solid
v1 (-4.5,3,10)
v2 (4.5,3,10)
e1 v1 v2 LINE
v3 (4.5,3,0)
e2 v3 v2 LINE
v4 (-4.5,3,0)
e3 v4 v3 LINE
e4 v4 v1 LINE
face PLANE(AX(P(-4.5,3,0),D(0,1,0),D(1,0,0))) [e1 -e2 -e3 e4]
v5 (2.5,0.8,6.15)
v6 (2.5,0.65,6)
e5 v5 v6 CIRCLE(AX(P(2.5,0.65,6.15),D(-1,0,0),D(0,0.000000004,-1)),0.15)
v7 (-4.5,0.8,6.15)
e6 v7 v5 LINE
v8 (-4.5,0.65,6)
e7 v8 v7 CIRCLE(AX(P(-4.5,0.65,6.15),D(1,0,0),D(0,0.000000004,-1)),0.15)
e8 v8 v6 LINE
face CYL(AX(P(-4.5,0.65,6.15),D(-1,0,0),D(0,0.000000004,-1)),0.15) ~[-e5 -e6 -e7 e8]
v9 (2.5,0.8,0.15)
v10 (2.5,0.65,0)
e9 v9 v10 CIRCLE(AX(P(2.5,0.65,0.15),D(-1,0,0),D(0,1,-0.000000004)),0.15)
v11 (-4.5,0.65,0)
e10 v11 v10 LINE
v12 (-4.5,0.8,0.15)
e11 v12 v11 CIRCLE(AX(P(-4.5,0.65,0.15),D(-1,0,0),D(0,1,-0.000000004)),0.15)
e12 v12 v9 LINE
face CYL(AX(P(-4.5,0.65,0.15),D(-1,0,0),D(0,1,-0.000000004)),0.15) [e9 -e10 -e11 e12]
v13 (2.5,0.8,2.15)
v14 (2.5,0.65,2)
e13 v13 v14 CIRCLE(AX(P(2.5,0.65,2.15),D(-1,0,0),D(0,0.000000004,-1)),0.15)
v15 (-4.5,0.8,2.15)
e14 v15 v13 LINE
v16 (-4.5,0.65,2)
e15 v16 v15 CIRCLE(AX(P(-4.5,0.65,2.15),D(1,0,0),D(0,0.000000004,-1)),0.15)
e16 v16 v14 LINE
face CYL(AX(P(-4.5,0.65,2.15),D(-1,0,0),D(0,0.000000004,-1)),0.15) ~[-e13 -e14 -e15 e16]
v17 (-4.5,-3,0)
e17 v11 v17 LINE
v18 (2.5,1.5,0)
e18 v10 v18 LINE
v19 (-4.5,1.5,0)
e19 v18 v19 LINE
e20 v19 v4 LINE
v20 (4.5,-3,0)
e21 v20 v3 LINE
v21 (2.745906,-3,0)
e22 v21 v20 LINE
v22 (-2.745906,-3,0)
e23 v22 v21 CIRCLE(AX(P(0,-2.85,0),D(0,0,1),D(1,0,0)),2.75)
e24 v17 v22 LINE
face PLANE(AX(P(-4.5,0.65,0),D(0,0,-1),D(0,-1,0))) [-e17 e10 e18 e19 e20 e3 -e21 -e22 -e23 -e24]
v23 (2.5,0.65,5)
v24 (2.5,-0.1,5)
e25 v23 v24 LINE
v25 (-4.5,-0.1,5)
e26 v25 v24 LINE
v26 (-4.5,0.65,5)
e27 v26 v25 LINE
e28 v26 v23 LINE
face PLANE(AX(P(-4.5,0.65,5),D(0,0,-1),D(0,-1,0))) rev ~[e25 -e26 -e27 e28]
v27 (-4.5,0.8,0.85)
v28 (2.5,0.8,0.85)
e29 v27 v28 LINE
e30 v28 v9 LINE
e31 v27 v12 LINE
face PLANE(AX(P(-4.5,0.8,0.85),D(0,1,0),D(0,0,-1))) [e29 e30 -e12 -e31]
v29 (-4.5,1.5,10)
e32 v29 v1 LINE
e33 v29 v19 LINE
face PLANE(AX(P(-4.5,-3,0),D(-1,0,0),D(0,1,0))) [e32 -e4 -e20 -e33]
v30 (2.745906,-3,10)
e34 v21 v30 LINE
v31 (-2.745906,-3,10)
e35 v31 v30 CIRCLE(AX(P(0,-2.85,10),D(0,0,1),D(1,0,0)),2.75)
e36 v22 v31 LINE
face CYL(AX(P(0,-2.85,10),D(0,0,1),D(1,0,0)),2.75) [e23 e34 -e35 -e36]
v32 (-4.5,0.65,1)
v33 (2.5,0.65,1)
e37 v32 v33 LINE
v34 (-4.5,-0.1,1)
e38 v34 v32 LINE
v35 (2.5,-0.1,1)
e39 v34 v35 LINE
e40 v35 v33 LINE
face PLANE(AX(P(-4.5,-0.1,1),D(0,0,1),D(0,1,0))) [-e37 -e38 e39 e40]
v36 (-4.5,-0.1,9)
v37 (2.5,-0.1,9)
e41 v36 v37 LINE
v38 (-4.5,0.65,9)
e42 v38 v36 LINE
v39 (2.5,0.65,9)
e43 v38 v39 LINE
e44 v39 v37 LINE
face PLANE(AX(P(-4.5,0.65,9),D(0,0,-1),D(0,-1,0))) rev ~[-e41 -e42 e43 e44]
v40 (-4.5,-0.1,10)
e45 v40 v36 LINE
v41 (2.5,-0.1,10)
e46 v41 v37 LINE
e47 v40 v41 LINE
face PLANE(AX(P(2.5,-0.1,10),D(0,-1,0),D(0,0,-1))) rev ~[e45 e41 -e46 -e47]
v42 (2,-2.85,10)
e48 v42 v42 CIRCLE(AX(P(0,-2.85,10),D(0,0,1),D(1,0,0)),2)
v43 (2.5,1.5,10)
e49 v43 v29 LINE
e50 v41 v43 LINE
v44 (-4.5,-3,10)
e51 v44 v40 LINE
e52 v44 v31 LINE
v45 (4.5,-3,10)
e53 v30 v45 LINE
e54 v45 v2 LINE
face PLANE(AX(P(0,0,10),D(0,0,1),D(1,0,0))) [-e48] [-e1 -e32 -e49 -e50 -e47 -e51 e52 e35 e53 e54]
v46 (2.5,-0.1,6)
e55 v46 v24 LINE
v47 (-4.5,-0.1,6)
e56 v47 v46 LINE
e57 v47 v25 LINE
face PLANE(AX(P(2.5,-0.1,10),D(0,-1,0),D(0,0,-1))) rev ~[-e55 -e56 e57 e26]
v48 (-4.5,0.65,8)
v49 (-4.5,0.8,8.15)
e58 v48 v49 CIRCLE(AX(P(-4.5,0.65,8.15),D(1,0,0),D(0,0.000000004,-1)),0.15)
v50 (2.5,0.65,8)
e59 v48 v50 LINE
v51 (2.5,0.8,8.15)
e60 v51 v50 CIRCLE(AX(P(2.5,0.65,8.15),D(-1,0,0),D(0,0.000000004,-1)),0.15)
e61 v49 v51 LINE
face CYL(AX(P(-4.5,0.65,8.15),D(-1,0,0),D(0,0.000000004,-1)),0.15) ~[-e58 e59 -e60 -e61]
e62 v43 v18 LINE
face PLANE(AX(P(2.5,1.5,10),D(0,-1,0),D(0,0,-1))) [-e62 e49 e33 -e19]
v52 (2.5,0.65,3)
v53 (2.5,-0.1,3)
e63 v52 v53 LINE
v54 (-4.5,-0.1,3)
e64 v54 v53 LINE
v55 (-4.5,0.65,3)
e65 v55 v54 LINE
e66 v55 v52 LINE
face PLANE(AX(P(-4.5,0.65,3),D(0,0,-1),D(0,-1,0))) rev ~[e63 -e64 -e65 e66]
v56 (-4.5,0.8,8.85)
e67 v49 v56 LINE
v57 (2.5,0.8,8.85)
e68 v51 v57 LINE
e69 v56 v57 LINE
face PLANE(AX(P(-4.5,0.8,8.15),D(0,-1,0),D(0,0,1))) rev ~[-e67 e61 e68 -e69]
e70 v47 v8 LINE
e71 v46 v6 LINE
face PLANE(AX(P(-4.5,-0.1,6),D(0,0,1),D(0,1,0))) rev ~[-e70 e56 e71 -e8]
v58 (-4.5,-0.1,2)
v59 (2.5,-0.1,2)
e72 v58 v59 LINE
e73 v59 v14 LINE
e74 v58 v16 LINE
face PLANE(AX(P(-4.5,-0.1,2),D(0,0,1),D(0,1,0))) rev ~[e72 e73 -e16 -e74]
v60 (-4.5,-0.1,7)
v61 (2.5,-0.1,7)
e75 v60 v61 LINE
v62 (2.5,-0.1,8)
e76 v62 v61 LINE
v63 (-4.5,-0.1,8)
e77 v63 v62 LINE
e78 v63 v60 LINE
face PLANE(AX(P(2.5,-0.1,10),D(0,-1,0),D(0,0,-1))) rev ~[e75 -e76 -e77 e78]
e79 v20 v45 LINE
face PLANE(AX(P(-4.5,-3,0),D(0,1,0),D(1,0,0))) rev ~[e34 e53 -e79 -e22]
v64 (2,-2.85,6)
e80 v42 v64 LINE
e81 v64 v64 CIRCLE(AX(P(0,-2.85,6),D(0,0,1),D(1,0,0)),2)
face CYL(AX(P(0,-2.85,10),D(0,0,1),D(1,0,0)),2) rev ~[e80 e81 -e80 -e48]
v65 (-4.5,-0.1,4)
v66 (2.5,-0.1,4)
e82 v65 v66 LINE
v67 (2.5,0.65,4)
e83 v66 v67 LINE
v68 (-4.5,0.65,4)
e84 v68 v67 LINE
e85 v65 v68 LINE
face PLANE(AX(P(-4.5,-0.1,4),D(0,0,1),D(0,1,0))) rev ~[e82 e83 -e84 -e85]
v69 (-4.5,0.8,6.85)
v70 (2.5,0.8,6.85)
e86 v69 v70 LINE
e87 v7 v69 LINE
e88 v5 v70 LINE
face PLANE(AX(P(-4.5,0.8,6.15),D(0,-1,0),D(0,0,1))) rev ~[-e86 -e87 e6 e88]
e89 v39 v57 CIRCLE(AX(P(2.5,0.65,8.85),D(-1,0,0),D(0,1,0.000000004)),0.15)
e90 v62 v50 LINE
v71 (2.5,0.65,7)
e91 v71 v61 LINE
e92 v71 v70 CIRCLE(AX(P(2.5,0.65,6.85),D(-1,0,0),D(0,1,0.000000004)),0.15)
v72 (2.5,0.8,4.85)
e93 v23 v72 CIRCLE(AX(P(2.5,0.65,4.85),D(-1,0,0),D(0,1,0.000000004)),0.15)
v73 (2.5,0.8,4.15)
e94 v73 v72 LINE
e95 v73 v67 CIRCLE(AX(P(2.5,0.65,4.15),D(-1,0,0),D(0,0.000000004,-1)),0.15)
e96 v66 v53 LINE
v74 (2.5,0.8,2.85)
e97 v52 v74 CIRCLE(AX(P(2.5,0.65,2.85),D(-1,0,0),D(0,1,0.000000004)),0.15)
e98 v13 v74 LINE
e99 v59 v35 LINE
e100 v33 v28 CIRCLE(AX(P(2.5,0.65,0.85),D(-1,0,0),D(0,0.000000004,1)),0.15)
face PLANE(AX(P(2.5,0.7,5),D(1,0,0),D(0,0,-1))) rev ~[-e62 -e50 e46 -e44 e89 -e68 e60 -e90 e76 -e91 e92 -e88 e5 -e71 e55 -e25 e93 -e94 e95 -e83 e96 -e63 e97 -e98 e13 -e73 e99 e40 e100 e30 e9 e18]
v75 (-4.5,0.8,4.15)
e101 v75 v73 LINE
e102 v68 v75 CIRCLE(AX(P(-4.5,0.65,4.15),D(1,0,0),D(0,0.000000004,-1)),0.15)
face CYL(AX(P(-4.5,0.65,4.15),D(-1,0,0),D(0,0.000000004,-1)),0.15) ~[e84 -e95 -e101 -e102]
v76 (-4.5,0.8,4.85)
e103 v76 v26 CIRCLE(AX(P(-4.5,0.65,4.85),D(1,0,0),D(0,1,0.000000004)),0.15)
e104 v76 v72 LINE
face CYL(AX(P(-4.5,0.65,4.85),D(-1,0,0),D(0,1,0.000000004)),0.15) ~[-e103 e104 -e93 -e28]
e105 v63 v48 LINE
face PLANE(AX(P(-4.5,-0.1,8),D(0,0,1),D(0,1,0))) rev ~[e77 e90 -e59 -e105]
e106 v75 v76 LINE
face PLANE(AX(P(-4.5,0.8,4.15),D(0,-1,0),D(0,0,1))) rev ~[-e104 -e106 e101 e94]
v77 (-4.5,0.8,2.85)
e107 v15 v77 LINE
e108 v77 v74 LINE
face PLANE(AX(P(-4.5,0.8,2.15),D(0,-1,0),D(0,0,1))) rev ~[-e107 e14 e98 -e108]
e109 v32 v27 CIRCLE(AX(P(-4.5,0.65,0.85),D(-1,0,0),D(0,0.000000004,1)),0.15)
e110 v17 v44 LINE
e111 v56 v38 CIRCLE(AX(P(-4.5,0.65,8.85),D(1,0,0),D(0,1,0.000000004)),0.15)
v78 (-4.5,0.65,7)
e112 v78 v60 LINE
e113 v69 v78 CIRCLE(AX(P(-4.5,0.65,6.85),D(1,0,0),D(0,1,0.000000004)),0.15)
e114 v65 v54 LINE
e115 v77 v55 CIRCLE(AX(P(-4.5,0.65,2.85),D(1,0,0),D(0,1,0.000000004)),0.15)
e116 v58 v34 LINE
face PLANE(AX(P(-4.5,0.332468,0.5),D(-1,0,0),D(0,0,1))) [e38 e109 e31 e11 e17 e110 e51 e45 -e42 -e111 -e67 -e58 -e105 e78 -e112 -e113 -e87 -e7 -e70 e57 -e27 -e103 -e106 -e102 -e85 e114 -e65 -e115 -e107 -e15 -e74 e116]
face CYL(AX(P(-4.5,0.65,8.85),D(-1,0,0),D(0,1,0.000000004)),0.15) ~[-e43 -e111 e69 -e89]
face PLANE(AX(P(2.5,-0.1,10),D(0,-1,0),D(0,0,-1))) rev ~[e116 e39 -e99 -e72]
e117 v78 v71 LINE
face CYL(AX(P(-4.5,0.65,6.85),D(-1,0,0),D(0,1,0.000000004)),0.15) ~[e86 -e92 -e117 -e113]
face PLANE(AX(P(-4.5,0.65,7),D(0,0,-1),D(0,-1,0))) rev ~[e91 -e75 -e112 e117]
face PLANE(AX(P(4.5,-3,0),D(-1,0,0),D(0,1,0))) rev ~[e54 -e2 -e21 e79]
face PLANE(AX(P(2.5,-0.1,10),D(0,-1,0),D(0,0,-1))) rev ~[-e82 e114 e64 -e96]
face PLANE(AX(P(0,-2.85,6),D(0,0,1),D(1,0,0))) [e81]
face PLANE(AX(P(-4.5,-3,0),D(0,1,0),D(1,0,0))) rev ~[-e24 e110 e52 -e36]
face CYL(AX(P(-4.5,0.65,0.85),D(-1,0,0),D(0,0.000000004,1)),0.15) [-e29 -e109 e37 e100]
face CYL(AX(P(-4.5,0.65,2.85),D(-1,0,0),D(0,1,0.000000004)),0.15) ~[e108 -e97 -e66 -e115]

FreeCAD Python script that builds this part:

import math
import FreeCAD as App
import Part
import Sketcher


def add_polygon(sketch, points):
    """Adds a closed chain of lines whose ends are joined by coincident constraints."""
    first, n = sketch.GeometryCount, len(points)
    for a, b in zip(points, points[1:] + points[:1]):
        sketch.addGeometry(Part.LineSegment(App.Vector(*a, 0), App.Vector(*b, 0)), False)
    for i in range(n):
        sketch.addConstraint(Sketcher.Constraint("Coincident", first + i, 2, first + (i + 1) % n, 1))

doc = App.newDocument("Part")
body = doc.addObject("PartDesign::Body", "Body")

# Sketch on XY plane
sketch1 = body.newObject("Sketcher::SketchObject", "Sketch")
sketch1.AttachmentSupport = (doc.getObject("XY_Plane"), [""])
sketch1.MapMode = "FlatFace"
add_polygon(sketch1, [(-4, 3), (-4, -3), (4, -3), (4, 3)])  # lines 0-3
sketch1.addConstraint(Sketcher.Constraint("Vertical", 0))
sketch1.addConstraint(Sketcher.Constraint("Horizontal", 1))
sketch1.addConstraint(Sketcher.Constraint("Vertical", 2))
sketch1.addConstraint(Sketcher.Constraint("Horizontal", 3))
sketch1.addConstraint(Sketcher.Constraint("Symmetric", 0, 2, 2, 2, -1, 1))
sketch1.addConstraint(Sketcher.Constraint("DistanceX", 1, 1, 1, 2, 9.0))
sketch1.addConstraint(Sketcher.Constraint("DistanceY", 0, 2, 0, 1, 6.0))
pad1 = body.newObject("PartDesign::Pad", "Pad")
pad1.Profile = sketch1
pad1.Length = 10

# Sketch on YZ plane
sketch2 = body.newObject("Sketcher::SketchObject", "Sketch001")
sketch2.AttachmentSupport = (doc.getObject("YZ_Plane"), [""])
sketch2.MapMode = "FlatFace"
sketch2.AttachmentOffset = App.Placement(App.Vector(0, 0, 2.5), App.Rotation())
add_polygon(sketch2, [(1.5, 10), (-0.1, 10), (-0.1, 0), (1.5, 0)])  # lines 0-3
sketch2.addConstraint(Sketcher.Constraint("Horizontal", 0))
sketch2.addConstraint(Sketcher.Constraint("Vertical", 1))
sketch2.addConstraint(Sketcher.Constraint("Horizontal", 2))
sketch2.addConstraint(Sketcher.Constraint("Vertical", 3))
sketch2.addConstraint(Sketcher.Constraint("PointOnObject", 1, 2, -1))
sketch2.addConstraint(Sketcher.Constraint("DistanceY", 1, 2, 1, 1, 10.0))
sketch2.addConstraint(Sketcher.Constraint("DistanceX", 0, 2, 0, 1, 1.6))
sketch2.addConstraint(Sketcher.Constraint("DistanceX", 0, 2, -1, 1, 0.1))
pocket1 = body.newObject("PartDesign::Pocket", "Pocket")
pocket1.Profile = sketch2
pocket1.Length = 7

# Sketch on XY plane
sketch3 = body.newObject("Sketcher::SketchObject", "Sketch002")
sketch3.AttachmentSupport = (doc.getObject("XY_Plane"), [""])
sketch3.MapMode = "FlatFace"
sketch3.AttachmentOffset = App.Placement(App.Vector(0, 0, 10), App.Rotation())
sketch3.addGeometry(Part.Circle(App.Vector(0, -2.9, 0), App.Vector(0, 0, 1), 2.8), False)
sketch3.addConstraint(Sketcher.Constraint("PointOnObject", 0, 3, -2))
sketch3.addConstraint(Sketcher.Constraint("Diameter", 0, 5.5))
sketch3.addConstraint(Sketcher.Constraint("DistanceY", 0, 3, -1, 1, 2.85))
pad2 = body.newObject("PartDesign::Pad", "Pad001")
pad2.Profile = sketch3
pad2.Type = "UpToLast"
pad2.Reversed = True

# Sketch on XY plane
sketch4 = body.newObject("Sketcher::SketchObject", "Sketch003")
sketch4.AttachmentSupport = (doc.getObject("XY_Plane"), [""])
sketch4.MapMode = "FlatFace"
sketch4.AttachmentOffset = App.Placement(App.Vector(0, 0, 10), App.Rotation())
sketch4.addGeometry(Part.Circle(App.Vector(0, -2.9, 0), App.Vector(0, 0, 1), 2), False)
sketch4.addConstraint(Sketcher.Constraint("PointOnObject", 0, 3, -2))
sketch4.addConstraint(Sketcher.Constraint("Diameter", 0, 4.0))
sketch4.addConstraint(Sketcher.Constraint("DistanceY", 0, 3, -1, 1, 2.85))
pocket2 = body.newObject("PartDesign::Pocket", "Pocket001")
pocket2.Profile = sketch4
pocket2.Length = 4

# Sketch on YZ plane
sketch5 = body.newObject("Sketcher::SketchObject", "Sketch004")
sketch5.AttachmentSupport = (doc.getObject("YZ_Plane"), [""])
sketch5.MapMode = "FlatFace"
sketch5.AttachmentOffset = App.Placement(App.Vector(0, 0, -4.5), App.Rotation())
sketch5.addGeometry(Part.LineSegment(App.Vector(-0.1, 0, 0), App.Vector(-0.1, 1, 0)), False)
sketch5.addGeometry(Part.LineSegment(App.Vector(-0.1, 1, 0), App.Vector(0.65, 1, 0)), False)
sketch5.addGeometry(Part.ArcOfCircle(Part.Circle(App.Vector(0.65, 0.85, 0), App.Vector(0, 0, 1), 0.15), math.radians(0), math.radians(90)), False)
sketch5.addGeometry(Part.LineSegment(App.Vector(0.8, 0.85, 0), App.Vector(0.8, 0.15, 0)), False)
sketch5.addGeometry(Part.ArcOfCircle(Part.Circle(App.Vector(0.65, 0.15, 0), App.Vector(0, 0, 1), 0.15), math.radians(-90), math.radians(0)), False)
sketch5.addGeometry(Part.LineSegment(App.Vector(0.65, 0, 0), App.Vector(-0.1, 0, 0)), False)
sketch5.addConstraint(Sketcher.Constraint("Coincident", 0, 2, 1, 1))
sketch5.addConstraint(Sketcher.Constraint("Tangent", 1, 2, 2, 2))
sketch5.addConstraint(Sketcher.Constraint("Tangent", 2, 1, 3, 1))
sketch5.addConstraint(Sketcher.Constraint("Tangent", 3, 2, 4, 2))
sketch5.addConstraint(Sketcher.Constraint("Tangent", 4, 1, 5, 1))
sketch5.addConstraint(Sketcher.Constraint("Coincident", 5, 2, 0, 1))
sketch5.addConstraint(Sketcher.Constraint("Vertical", 0))
sketch5.addConstraint(Sketcher.Constraint("Horizontal", 1))
sketch5.addConstraint(Sketcher.Constraint("Vertical", 3))
sketch5.addConstraint(Sketcher.Constraint("Horizontal", 5))
sketch5.addConstraint(Sketcher.Constraint("Equal", 2, 4))
sketch5.addConstraint(Sketcher.Constraint("PointOnObject", 4, 1, -1))
sketch5.addConstraint(Sketcher.Constraint("DistanceY", 0, 1, 0, 2, 1.0))
sketch5.addConstraint(Sketcher.Constraint("Radius", 2, 0.15))
sketch5.addConstraint(Sketcher.Constraint("DistanceX", 1, 1, 1, 2, 0.75))
sketch5.addConstraint(Sketcher.Constraint("DistanceX", 0, 2, -1, 1, 0.1))
pad3 = body.newObject("PartDesign::Pad", "Pad002")
pad3.Profile = sketch5
pad3.Type = "UpToFirst"

# Sketch on YZ plane
sketch6 = body.newObject("Sketcher::SketchObject", "Sketch005")
sketch6.AttachmentSupport = (doc.getObject("YZ_Plane"), [""])
sketch6.MapMode = "FlatFace"
sketch6.AttachmentOffset = App.Placement(App.Vector(0, 0, -4.5), App.Rotation())
sketch6.addGeometry(Part.LineSegment(App.Vector(0.65, 2, 0), App.Vector(-0.1, 2, 0)), False)
sketch6.addGeometry(Part.LineSegment(App.Vector(-0.1, 2, 0), App.Vector(-0.1, 3, 0)), False)
sketch6.addGeometry(Part.LineSegment(App.Vector(-0.1, 3, 0), App.Vector(0.65, 3, 0)), False)
sketch6.addGeometry(Part.ArcOfCircle(Part.Circle(App.Vector(0.65, 2.85, 0), App.Vector(0, 0, 1), 0.15), math.radians(0), math.radians(90)), False)
sketch6.addGeometry(Part.LineSegment(App.Vector(0.8, 2.85, 0), App.Vector(0.8, 2.15, 0)), False)
sketch6.addGeometry(Part.ArcOfCircle(Part.Circle(App.Vector(0.65, 2.15, 0), App.Vector(0, 0, 1), 0.15), math.radians(-90), math.radians(0)), False)
sketch6.addConstraint(Sketcher.Constraint("Coincident", 0, 2, 1, 1))
sketch6.addConstraint(Sketcher.Constraint("Coincident", 1, 2, 2, 1))
sketch6.addConstraint(Sketcher.Constraint("Tangent", 2, 2, 3, 2))
sketch6.addConstraint(Sketcher.Constraint("Tangent", 3, 1, 4, 1))
sketch6.addConstraint(Sketcher.Constraint("Tangent", 4, 2, 5, 2))
sketch6.addConstraint(Sketcher.Constraint("Tangent", 5, 1, 0, 1))
sketch6.addConstraint(Sketcher.Constraint("Horizontal", 0))
sketch6.addConstraint(Sketcher.Constraint("Vertical", 1))
sketch6.addConstraint(Sketcher.Constraint("Horizontal", 2))
sketch6.addConstraint(Sketcher.Constraint("Vertical", 4))
sketch6.addConstraint(Sketcher.Constraint("Equal", 3, 5))
sketch6.addConstraint(Sketcher.Constraint("DistanceY", 1, 1, 1, 2, 1.0))
sketch6.addConstraint(Sketcher.Constraint("Radius", 3, 0.15))
sketch6.addConstraint(Sketcher.Constraint("DistanceY", -1, 1, 0, 2, 2.0))
sketch6.addConstraint(Sketcher.Constraint("DistanceX", 0, 2, 0, 1, 0.75))
sketch6.addConstraint(Sketcher.Constraint("DistanceX", 0, 2, -1, 1, 0.1))
pad4 = body.newObject("PartDesign::Pad", "Pad003")
pad4.Profile = sketch6
pad4.Type = "UpToFirst"

# Sketch on YZ plane
sketch7 = body.newObject("Sketcher::SketchObject", "Sketch006")
sketch7.AttachmentSupport = (doc.getObject("YZ_Plane"), [""])
sketch7.MapMode = "FlatFace"
sketch7.AttachmentOffset = App.Placement(App.Vector(0, 0, -4.5), App.Rotation())
sketch7.addGeometry(Part.LineSegment(App.Vector(0.65, 4, 0), App.Vector(-0.1, 4, 0)), False)
sketch7.addGeometry(Part.LineSegment(App.Vector(-0.1, 4, 0), App.Vector(-0.1, 5, 0)), False)
sketch7.addGeometry(Part.LineSegment(App.Vector(-0.1, 5, 0), App.Vector(0.65, 5, 0)), False)
sketch7.addGeometry(Part.ArcOfCircle(Part.Circle(App.Vector(0.65, 4.85, 0), App.Vector(0, 0, 1), 0.15), math.radians(0), math.radians(90)), False)
sketch7.addGeometry(Part.LineSegment(App.Vector(0.8, 4.85, 0), App.Vector(0.8, 4.15, 0)), False)
sketch7.addGeometry(Part.ArcOfCircle(Part.Circle(App.Vector(0.65, 4.15, 0), App.Vector(0, 0, 1), 0.15), math.radians(-90), math.radians(0)), False)
sketch7.addConstraint(Sketcher.Constraint("Coincident", 0, 2, 1, 1))
sketch7.addConstraint(Sketcher.Constraint("Coincident", 1, 2, 2, 1))
sketch7.addConstraint(Sketcher.Constraint("Tangent", 2, 2, 3, 2))
sketch7.addConstraint(Sketcher.Constraint("Tangent", 3, 1, 4, 1))
sketch7.addConstraint(Sketcher.Constraint("Tangent", 4, 2, 5, 2))
sketch7.addConstraint(Sketcher.Constraint("Tangent", 5, 1, 0, 1))
sketch7.addConstraint(Sketcher.Constraint("Horizontal", 0))
sketch7.addConstraint(Sketcher.Constraint("Vertical", 1))
sketch7.addConstraint(Sketcher.Constraint("Horizontal", 2))
sketch7.addConstraint(Sketcher.Constraint("Vertical", 4))
sketch7.addConstraint(Sketcher.Constraint("Equal", 3, 5))
sketch7.addConstraint(Sketcher.Constraint("DistanceY", 1, 1, 1, 2, 1.0))
sketch7.addConstraint(Sketcher.Constraint("Radius", 3, 0.15))
sketch7.addConstraint(Sketcher.Constraint("DistanceY", -1, 1, 0, 2, 4.0))
sketch7.addConstraint(Sketcher.Constraint("DistanceX", 0, 2, 0, 1, 0.75))
sketch7.addConstraint(Sketcher.Constraint("DistanceX", 0, 2, -1, 1, 0.1))
pad5 = body.newObject("PartDesign::Pad", "Pad004")
pad5.Profile = sketch7
pad5.Type = "UpToFirst"

# Sketch on YZ plane
sketch8 = body.newObject("Sketcher::SketchObject", "Sketch007")
sketch8.AttachmentSupport = (doc.getObject("YZ_Plane"), [""])
sketch8.MapMode = "FlatFace"
sketch8.AttachmentOffset = App.Placement(App.Vector(0, 0, -4.5), App.Rotation())
sketch8.addGeometry(Part.LineSegment(App.Vector(0.65, 6, 0), App.Vector(-0.1, 6, 0)), False)
sketch8.addGeometry(Part.LineSegment(App.Vector(-0.1, 6, 0), App.Vector(-0.1, 7, 0)), False)
sketch8.addGeometry(Part.LineSegment(App.Vector(-0.1, 7, 0), App.Vector(0.65, 7, 0)), False)
sketch8.addGeometry(Part.ArcOfCircle(Part.Circle(App.Vector(0.65, 6.85, 0), App.Vector(0, 0, 1), 0.15), math.radians(0), math.radians(90)), False)
sketch8.addGeometry(Part.LineSegment(App.Vector(0.8, 6.85, 0), App.Vector(0.8, 6.15, 0)), False)
sketch8.addGeometry(Part.ArcOfCircle(Part.Circle(App.Vector(0.65, 6.15, 0), App.Vector(0, 0, 1), 0.15), math.radians(-90), math.radians(0)), False)
sketch8.addConstraint(Sketcher.Constraint("Coincident", 0, 2, 1, 1))
sketch8.addConstraint(Sketcher.Constraint("Coincident", 1, 2, 2, 1))
sketch8.addConstraint(Sketcher.Constraint("Tangent", 2, 2, 3, 2))
sketch8.addConstraint(Sketcher.Constraint("Tangent", 3, 1, 4, 1))
sketch8.addConstraint(Sketcher.Constraint("Tangent", 4, 2, 5, 2))
sketch8.addConstraint(Sketcher.Constraint("Tangent", 5, 1, 0, 1))
sketch8.addConstraint(Sketcher.Constraint("Horizontal", 0))
sketch8.addConstraint(Sketcher.Constraint("Vertical", 1))
sketch8.addConstraint(Sketcher.Constraint("Horizontal", 2))
sketch8.addConstraint(Sketcher.Constraint("Vertical", 4))
sketch8.addConstraint(Sketcher.Constraint("Equal", 3, 5))
sketch8.addConstraint(Sketcher.Constraint("DistanceY", 1, 1, 1, 2, 1.0))
sketch8.addConstraint(Sketcher.Constraint("Radius", 3, 0.15))
sketch8.addConstraint(Sketcher.Constraint("DistanceY", -1, 1, 0, 2, 6.0))
sketch8.addConstraint(Sketcher.Constraint("DistanceX", 0, 2, 0, 1, 0.75))
sketch8.addConstraint(Sketcher.Constraint("DistanceX", 0, 2, -1, 1, 0.1))
pad6 = body.newObject("PartDesign::Pad", "Pad005")
pad6.Profile = sketch8
pad6.Type = "UpToFirst"

# Sketch on YZ plane
sketch9 = body.newObject("Sketcher::SketchObject", "Sketch008")
sketch9.AttachmentSupport = (doc.getObject("YZ_Plane"), [""])
sketch9.MapMode = "FlatFace"
sketch9.AttachmentOffset = App.Placement(App.Vector(0, 0, -4.5), App.Rotation())
sketch9.addGeometry(Part.LineSegment(App.Vector(0.65, 8, 0), App.Vector(-0.1, 8, 0)), False)
sketch9.addGeometry(Part.LineSegment(App.Vector(-0.1, 8, 0), App.Vector(-0.1, 9, 0)), False)
sketch9.addGeometry(Part.LineSegment(App.Vector(-0.1, 9, 0), App.Vector(0.65, 9, 0)), False)
sketch9.addGeometry(Part.ArcOfCircle(Part.Circle(App.Vector(0.65, 8.85, 0), App.Vector(0, 0, 1), 0.15), math.radians(0), math.radians(90)), False)
sketch9.addGeometry(Part.LineSegment(App.Vector(0.8, 8.85, 0), App.Vector(0.8, 8.15, 0)), False)
sketch9.addGeometry(Part.ArcOfCircle(Part.Circle(App.Vector(0.65, 8.15, 0), App.Vector(0, 0, 1), 0.15), math.radians(-90), math.radians(0)), False)
sketch9.addConstraint(Sketcher.Constraint("Coincident", 0, 2, 1, 1))
sketch9.addConstraint(Sketcher.Constraint("Coincident", 1, 2, 2, 1))
sketch9.addConstraint(Sketcher.Constraint("Tangent", 2, 2, 3, 2))
sketch9.addConstraint(Sketcher.Constraint("Tangent", 3, 1, 4, 1))
sketch9.addConstraint(Sketcher.Constraint("Tangent", 4, 2, 5, 2))
sketch9.addConstraint(Sketcher.Constraint("Tangent", 5, 1, 0, 1))
sketch9.addConstraint(Sketcher.Constraint("Horizontal", 0))
sketch9.addConstraint(Sketcher.Constraint("Vertical", 1))
sketch9.addConstraint(Sketcher.Constraint("Horizontal", 2))
sketch9.addConstraint(Sketcher.Constraint("Vertical", 4))
sketch9.addConstraint(Sketcher.Constraint("Equal", 3, 5))
sketch9.addConstraint(Sketcher.Constraint("DistanceY", 1, 1, 1, 2, 1.0))
sketch9.addConstraint(Sketcher.Constraint("Radius", 3, 0.15))
sketch9.addConstraint(Sketcher.Constraint("DistanceY", -1, 1, 0, 2, 8.0))
sketch9.addConstraint(Sketcher.Constraint("DistanceX", 0, 2, 0, 1, 0.75))
sketch9.addConstraint(Sketcher.Constraint("DistanceX", 0, 2, -1, 1, 0.1))
pad7 = body.newObject("PartDesign::Pad", "Pad006")
pad7.Profile = sketch9
pad7.Type = "UpToFirst"

doc.recompute()
